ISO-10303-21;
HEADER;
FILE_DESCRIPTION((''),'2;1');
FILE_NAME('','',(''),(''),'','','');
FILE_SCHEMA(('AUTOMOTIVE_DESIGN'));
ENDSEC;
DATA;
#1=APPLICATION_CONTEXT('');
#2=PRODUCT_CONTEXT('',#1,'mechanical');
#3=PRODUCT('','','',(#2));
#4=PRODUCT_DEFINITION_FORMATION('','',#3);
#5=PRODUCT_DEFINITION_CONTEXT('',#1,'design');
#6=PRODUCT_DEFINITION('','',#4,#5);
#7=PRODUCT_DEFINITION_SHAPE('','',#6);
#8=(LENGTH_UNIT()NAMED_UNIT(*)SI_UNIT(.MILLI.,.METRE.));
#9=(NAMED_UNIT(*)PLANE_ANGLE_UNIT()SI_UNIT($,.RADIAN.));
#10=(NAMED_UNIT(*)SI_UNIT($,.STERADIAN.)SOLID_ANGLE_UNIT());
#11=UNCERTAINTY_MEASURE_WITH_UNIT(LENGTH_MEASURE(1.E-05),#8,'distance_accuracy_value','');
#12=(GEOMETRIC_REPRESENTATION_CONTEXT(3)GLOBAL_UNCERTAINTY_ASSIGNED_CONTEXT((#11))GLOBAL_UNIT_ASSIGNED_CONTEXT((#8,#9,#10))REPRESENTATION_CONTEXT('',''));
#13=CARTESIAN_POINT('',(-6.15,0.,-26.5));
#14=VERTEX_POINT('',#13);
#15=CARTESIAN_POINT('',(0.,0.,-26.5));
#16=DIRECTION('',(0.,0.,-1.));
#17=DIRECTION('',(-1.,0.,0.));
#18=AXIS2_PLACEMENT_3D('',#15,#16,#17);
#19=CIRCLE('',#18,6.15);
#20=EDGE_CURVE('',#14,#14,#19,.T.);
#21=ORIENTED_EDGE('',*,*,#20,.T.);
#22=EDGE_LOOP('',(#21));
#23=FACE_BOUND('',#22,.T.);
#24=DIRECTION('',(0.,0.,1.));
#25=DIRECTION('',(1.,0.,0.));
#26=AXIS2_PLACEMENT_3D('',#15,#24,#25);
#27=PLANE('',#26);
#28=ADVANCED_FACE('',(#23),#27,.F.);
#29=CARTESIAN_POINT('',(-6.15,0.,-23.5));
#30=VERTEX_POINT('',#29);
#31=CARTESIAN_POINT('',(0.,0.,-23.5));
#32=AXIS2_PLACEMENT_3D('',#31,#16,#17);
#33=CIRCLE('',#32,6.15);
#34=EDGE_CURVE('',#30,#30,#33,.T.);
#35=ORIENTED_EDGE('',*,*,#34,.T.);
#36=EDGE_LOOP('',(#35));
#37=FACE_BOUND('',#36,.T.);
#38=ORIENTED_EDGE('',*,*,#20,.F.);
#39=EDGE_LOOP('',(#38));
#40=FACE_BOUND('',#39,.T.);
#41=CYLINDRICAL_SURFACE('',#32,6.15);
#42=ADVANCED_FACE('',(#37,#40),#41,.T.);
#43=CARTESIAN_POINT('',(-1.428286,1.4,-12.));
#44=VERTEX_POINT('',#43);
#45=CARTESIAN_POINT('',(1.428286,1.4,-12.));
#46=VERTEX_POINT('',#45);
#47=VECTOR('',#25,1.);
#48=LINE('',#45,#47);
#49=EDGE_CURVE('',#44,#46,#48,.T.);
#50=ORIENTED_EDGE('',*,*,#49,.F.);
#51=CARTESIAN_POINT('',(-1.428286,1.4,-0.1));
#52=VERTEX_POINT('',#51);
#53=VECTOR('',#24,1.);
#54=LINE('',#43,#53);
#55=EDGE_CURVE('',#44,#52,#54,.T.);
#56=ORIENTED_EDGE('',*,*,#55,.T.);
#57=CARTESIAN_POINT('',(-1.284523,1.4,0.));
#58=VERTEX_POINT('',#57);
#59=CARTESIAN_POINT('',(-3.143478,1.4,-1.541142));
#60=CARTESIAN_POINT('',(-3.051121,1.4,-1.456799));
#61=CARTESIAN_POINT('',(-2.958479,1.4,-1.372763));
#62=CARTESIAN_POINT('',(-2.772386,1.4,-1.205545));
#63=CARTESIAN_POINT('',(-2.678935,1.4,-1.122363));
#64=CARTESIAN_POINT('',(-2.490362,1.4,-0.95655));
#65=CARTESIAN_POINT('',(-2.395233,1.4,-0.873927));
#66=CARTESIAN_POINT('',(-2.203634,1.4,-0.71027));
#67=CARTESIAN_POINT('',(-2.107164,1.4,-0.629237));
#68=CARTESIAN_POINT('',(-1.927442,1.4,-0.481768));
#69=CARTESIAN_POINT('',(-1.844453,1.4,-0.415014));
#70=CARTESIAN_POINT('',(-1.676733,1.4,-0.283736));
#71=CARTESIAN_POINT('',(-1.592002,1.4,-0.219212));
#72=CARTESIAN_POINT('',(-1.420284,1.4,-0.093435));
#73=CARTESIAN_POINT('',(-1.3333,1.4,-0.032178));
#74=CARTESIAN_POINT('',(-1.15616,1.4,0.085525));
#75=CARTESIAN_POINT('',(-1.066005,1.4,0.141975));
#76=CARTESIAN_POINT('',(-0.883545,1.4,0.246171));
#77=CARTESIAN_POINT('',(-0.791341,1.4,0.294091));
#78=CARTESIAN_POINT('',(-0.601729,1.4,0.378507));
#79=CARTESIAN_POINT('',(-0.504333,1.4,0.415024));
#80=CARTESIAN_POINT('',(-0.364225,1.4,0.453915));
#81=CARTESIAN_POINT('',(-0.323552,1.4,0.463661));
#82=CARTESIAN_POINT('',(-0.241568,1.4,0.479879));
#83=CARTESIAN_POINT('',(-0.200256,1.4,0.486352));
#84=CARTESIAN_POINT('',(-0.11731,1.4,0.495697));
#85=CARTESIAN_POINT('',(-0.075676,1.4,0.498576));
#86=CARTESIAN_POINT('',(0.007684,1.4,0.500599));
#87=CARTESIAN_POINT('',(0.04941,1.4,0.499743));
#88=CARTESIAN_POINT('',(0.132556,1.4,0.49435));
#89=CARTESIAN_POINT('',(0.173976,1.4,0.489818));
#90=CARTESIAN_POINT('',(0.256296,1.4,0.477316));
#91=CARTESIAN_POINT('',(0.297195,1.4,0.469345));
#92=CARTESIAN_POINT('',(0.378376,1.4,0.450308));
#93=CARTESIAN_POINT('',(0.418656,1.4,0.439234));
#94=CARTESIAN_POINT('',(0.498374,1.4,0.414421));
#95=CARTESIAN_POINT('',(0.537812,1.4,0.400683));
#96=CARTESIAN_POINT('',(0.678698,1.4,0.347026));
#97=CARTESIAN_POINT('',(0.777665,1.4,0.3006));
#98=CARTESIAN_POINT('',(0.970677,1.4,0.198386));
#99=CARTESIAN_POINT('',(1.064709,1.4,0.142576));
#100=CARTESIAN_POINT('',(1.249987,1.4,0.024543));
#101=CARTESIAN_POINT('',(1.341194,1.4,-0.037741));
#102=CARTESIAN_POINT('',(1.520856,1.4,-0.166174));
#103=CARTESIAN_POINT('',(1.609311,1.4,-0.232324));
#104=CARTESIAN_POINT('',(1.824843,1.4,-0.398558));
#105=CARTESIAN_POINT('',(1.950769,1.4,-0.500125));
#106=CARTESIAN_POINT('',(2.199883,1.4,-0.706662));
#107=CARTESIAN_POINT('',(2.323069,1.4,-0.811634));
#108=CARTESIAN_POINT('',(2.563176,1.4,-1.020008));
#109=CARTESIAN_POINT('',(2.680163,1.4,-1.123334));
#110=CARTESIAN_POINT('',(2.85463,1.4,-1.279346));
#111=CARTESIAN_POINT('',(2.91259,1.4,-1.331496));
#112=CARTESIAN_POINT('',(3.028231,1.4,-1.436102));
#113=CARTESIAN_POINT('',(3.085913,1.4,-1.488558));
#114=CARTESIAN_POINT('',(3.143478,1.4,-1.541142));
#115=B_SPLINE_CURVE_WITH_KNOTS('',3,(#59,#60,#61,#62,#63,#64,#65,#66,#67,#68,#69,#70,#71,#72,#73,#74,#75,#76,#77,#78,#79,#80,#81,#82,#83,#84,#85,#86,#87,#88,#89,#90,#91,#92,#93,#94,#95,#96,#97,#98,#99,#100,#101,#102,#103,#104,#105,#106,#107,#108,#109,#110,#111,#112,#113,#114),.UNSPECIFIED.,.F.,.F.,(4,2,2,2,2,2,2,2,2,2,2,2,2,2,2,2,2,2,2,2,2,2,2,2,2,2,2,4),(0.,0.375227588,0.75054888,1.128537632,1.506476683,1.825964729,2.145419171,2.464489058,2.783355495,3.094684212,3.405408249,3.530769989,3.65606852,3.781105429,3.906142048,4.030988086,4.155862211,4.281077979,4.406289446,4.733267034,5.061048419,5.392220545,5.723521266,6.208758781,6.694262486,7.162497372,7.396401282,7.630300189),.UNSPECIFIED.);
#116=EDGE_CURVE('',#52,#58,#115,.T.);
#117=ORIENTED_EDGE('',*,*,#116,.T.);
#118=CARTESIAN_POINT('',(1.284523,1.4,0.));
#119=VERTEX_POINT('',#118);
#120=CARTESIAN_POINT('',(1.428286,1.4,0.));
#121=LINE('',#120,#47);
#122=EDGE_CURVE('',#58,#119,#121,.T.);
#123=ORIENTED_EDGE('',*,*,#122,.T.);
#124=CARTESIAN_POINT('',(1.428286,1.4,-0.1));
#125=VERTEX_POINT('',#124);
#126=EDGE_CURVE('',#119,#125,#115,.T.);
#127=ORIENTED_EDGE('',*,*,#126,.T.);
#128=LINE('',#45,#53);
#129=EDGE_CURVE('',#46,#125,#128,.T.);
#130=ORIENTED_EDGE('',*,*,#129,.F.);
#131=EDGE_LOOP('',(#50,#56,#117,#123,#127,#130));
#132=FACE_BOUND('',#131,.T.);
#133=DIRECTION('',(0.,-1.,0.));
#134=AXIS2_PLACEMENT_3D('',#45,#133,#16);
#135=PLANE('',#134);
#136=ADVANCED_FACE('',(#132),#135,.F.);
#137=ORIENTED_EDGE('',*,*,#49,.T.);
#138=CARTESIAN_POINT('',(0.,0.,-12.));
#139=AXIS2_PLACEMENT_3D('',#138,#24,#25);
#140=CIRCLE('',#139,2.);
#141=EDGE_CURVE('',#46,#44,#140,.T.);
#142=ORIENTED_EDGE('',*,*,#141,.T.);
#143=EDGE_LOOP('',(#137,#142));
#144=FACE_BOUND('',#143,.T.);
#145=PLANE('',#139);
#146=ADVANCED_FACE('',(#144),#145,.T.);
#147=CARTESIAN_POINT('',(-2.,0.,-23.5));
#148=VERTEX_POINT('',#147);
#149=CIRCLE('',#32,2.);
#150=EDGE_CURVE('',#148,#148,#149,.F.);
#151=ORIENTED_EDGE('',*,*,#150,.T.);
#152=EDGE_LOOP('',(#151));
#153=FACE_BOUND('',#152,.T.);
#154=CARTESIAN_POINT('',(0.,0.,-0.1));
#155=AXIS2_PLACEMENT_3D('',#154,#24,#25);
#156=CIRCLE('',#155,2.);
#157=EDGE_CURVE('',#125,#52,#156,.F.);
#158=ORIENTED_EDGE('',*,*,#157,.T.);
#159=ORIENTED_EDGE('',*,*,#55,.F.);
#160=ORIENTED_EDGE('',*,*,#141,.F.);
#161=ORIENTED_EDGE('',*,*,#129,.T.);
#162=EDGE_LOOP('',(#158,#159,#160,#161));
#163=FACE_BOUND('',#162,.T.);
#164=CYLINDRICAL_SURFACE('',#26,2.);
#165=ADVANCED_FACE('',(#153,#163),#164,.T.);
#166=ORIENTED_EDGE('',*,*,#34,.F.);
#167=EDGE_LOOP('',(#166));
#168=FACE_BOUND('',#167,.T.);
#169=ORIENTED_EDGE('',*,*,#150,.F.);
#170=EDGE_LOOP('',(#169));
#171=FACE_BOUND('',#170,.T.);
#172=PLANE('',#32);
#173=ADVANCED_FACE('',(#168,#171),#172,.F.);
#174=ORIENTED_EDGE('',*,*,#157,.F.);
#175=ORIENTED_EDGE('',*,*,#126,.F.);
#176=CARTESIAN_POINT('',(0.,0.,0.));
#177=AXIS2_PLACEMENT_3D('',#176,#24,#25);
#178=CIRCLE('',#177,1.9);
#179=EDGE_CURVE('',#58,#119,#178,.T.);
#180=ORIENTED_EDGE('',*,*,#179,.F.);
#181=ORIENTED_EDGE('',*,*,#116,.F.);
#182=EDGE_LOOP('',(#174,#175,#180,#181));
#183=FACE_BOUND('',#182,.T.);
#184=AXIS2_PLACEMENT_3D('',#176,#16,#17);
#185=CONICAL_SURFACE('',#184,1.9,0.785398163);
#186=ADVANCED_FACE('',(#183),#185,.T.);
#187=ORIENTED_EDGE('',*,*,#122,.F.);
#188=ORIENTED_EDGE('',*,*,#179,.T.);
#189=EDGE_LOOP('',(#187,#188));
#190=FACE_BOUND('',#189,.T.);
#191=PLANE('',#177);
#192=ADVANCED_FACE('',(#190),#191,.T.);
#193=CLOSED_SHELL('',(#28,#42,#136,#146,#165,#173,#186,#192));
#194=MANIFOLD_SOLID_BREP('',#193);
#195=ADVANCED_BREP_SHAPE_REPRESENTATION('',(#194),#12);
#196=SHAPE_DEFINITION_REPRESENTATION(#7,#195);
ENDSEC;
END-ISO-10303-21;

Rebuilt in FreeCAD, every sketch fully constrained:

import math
import FreeCAD as App
import Part
import Sketcher


def edges_at(feature, points):
    """Names of the edges that pass closest to the given points."""
    edges = feature.Shape.Edges
    near = lambda p: min(range(len(edges)), key=lambda i: edges[i].distToShape(Part.Vertex(*p))[0])
    return sorted({f"Edge{near(p) + 1}" for p in points})

doc = App.newDocument("Part")
body = doc.addObject("PartDesign::Body", "Body")

# Sketch on XY plane
sketch1 = doc.addObject("Sketcher::SketchObject", "Sketch")
body.addObject(sketch1)
sketch1.AttachmentSupport = (doc.XY_Plane, [""])
sketch1.MapMode = "FlatFace"
sketch1.addGeometry(Part.Circle(App.Vector(0, 0, 0), App.Vector(0, 0, 1), 2), False)
sketch1.addConstraint([
    Sketcher.Constraint("Coincident", 0, 3, -1, 1),
    Sketcher.Constraint("Diameter", 0, 4.0),
])
pad1 = doc.addObject("PartDesign::Pad", "Pad")
body.addObject(pad1)
pad1.Profile = sketch1
pad1.Length = 26.5
pad1.Reversed = True

# Sketch on XY plane
sketch2 = doc.addObject("Sketcher::SketchObject", "Sketch001")
body.addObject(sketch2)
sketch2.AttachmentSupport = (doc.XY_Plane, [""])
sketch2.MapMode = "FlatFace"
sketch2.AttachmentOffset = App.Placement(App.Vector(0, 0, -26.5), App.Rotation())
sketch2.addGeometry(Part.Circle(App.Vector(0, 0, 0), App.Vector(0, 0, 1), 6), False)
sketch2.addConstraint([
    Sketcher.Constraint("Coincident", 0, 3, -1, 1),
    Sketcher.Constraint("Diameter", 0, 12.3),
])
pad2 = doc.addObject("PartDesign::Pad", "Pad001")
body.addObject(pad2)
pad2.Profile = sketch2
pad2.Length = 3
doc.recompute()

chamfer = doc.addObject("PartDesign::Chamfer", "Chamfer")
body.addObject(chamfer)
chamfer.Base = (pad2, edges_at(pad2, [(-2, 0, 0)]))
chamfer.Size = 0.1

# Sketch on XY plane
sketch3 = doc.addObject("Sketcher::SketchObject", "Sketch002")
body.addObject(sketch3)
sketch3.AttachmentSupport = (doc.XY_Plane, [""])
sketch3.MapMode = "FlatFace"
sketch3.addGeometry([
    Part.LineSegment(App.Vector(-1.4, 1.4, 0), App.Vector(1.4, 1.4, 0)),
    Part.ArcOfCircle(Part.Circle(App.Vector(0, 0, 0), App.Vector(0, 0, 1), 2), math.radians(44), math.radians(136)),
], False)
sketch3.addConstraint([
    Sketcher.Constraint("Coincident", 0, 1, 1, 2),
    Sketcher.Constraint("Coincident", 1, 1, 0, 2),
    Sketcher.Constraint("Horizontal", 0),
    Sketcher.Constraint("Coincident", 1, 3, -1, 1),
    Sketcher.Constraint("Radius", 1, 2.0),
    Sketcher.Constraint("DistanceY", -1, 1, 0, 1, 1.4),
])
pocket1 = doc.addObject("PartDesign::Pocket", "Pocket")
body.addObject(pocket1)
pocket1.Profile = sketch3
pocket1.Length = 12

doc.recompute()
